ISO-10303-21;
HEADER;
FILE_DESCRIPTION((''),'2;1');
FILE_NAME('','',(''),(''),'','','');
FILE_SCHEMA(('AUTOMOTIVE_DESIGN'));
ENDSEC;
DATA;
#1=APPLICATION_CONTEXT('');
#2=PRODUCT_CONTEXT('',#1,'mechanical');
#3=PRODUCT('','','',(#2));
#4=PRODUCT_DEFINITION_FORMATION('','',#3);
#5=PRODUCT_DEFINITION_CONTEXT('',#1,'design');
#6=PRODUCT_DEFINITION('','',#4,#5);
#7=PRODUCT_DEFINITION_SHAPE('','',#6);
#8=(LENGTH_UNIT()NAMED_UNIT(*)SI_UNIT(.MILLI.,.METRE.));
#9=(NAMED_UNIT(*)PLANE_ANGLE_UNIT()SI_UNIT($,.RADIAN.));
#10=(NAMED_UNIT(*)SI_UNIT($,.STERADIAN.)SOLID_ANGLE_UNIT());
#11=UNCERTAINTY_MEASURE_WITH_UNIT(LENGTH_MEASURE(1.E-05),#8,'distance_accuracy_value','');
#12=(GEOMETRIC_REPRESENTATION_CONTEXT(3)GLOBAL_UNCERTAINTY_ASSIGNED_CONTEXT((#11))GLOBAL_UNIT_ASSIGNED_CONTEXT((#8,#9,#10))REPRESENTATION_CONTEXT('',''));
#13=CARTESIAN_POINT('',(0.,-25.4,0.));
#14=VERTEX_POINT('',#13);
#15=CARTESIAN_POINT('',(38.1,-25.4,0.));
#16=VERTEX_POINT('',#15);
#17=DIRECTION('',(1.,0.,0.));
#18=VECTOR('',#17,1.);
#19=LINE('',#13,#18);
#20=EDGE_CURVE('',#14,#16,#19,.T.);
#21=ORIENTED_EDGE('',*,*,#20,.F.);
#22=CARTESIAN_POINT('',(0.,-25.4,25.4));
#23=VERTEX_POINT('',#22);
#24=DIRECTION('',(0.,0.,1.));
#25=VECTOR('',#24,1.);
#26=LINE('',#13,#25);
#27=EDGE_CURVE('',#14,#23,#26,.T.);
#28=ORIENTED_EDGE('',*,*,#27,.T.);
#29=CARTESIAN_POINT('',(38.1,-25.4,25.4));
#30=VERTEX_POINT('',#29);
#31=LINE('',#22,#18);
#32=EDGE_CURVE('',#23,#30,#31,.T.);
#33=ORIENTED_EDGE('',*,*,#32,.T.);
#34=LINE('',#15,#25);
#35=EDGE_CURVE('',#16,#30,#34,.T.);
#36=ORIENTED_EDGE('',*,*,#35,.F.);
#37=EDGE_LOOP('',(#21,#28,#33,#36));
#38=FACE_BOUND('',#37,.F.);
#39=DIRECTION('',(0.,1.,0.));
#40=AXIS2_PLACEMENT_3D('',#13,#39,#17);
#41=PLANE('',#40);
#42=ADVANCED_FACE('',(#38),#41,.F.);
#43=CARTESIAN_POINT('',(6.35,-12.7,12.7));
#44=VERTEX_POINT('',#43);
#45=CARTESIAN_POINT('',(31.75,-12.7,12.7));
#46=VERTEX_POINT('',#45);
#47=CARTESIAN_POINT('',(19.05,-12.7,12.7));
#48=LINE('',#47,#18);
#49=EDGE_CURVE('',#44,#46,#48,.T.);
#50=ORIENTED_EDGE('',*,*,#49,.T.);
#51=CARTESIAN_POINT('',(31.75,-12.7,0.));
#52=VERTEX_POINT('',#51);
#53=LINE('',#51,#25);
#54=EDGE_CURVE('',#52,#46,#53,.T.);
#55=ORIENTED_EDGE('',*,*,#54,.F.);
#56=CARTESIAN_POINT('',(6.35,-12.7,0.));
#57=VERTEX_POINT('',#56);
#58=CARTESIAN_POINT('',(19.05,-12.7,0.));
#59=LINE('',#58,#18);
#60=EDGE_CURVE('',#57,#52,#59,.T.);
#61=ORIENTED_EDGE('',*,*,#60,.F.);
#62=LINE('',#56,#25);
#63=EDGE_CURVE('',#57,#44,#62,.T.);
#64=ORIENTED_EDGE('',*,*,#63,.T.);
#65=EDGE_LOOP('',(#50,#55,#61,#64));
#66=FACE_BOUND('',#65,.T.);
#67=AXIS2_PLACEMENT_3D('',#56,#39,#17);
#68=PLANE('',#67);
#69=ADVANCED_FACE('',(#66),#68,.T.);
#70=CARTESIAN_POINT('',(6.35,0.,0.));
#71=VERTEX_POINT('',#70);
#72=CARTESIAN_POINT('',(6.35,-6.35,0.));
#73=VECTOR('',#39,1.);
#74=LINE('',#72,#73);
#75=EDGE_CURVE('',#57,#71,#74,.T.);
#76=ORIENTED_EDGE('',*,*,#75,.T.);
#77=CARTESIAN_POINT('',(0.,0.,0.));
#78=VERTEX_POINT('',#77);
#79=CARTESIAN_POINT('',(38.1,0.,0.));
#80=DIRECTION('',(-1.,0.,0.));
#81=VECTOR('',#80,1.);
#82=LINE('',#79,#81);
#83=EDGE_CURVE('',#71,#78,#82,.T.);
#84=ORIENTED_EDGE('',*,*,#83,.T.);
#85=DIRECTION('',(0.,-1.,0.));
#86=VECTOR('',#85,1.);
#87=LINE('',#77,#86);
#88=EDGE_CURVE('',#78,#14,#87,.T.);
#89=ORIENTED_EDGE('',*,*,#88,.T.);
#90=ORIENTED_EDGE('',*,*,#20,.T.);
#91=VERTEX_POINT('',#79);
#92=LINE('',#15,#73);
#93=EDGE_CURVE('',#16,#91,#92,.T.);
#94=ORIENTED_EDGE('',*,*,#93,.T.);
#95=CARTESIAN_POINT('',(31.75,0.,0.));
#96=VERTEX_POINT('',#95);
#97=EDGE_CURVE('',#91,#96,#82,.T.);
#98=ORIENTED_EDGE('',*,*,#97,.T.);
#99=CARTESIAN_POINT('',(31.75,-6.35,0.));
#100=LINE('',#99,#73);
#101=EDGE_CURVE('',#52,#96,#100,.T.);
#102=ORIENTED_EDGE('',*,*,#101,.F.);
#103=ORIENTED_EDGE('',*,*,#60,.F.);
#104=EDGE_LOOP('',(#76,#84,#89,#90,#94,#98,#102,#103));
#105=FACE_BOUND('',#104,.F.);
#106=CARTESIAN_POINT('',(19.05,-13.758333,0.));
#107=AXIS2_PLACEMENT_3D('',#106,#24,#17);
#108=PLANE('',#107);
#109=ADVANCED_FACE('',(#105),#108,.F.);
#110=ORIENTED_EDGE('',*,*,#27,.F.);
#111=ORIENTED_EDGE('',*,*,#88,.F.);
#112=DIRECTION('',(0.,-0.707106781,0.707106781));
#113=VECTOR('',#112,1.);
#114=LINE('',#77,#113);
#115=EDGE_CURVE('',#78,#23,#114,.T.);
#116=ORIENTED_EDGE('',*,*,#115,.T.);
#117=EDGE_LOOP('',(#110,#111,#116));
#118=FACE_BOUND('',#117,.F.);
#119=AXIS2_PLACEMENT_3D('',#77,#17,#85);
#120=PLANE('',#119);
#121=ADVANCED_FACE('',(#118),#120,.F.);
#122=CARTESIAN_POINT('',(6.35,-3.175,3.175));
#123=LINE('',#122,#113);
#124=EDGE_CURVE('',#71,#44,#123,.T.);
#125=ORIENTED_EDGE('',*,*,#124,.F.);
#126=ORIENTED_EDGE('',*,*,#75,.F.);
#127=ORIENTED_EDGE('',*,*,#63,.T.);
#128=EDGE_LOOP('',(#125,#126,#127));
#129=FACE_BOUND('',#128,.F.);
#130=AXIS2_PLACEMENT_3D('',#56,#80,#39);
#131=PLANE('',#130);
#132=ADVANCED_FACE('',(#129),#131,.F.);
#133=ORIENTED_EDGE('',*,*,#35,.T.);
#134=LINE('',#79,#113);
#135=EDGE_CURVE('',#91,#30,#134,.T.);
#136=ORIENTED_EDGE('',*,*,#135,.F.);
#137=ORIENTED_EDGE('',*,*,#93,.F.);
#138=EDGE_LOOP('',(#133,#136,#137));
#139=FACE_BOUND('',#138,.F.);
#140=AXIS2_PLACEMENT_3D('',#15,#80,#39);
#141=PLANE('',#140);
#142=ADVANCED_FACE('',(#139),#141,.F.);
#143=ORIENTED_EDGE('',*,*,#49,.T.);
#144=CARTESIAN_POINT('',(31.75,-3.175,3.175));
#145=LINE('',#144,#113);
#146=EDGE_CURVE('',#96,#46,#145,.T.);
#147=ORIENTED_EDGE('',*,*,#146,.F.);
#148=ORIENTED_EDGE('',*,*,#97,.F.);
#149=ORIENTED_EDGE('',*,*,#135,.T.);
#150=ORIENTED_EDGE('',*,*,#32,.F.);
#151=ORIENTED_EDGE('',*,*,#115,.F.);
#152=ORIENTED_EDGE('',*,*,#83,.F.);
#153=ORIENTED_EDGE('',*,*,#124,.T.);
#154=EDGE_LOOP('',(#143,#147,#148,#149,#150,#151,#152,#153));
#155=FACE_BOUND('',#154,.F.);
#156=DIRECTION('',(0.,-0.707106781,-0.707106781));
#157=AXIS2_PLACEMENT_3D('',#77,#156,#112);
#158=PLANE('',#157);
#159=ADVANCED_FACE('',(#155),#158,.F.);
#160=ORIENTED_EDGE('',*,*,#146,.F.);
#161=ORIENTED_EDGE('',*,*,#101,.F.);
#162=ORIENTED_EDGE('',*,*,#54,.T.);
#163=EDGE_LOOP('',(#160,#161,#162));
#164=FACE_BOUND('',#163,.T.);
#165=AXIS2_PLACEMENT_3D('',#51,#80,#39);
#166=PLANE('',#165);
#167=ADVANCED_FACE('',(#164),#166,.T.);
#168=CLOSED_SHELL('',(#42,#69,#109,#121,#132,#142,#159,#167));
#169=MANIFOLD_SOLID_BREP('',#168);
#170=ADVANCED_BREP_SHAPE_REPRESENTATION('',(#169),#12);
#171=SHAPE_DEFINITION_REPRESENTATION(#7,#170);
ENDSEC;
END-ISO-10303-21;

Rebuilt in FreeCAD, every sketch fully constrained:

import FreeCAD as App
import Part
import Sketcher
Q = App.Units.Quantity

doc = App.newDocument("Part")
params = doc.addObject("Spreadsheet::Sheet", "Params")
for row, (alias, value) in enumerate([
    ("sketch1_height", "1 in"),
    ("sketch1_width", "1.5 in"),
    ("pad1_length", "1 in"),
    ("sketch2_width", "1 in"),
    ("sketch2_height", "0.5 in"),
    ("pocket1_length", "0.5 in"),
    ("sketch3_width", "1 in"),
    ("pocket2_length", "1.5 in"),
], start=1):
    params.set(f"A{row}", alias)
    params.set(f"B{row}", "=" + value)
    params.setAlias(f"B{row}", alias)

body = doc.addObject("PartDesign::Body", "Body")

# Sketch on XY plane
sketch1 = body.newObject("Sketcher::SketchObject", "Sketch")
sketch1.AttachmentSupport = (doc.getObject("XY_Plane"), [""])
sketch1.MapMode = "FlatFace"
sketch1.addGeometry([
    Part.LineSegment(App.Vector(0, 0, 0), App.Vector(0, -25.4, 0)),
    Part.LineSegment(App.Vector(0, -25.4, 0), App.Vector(38.1, -25.4, 0)),
    Part.LineSegment(App.Vector(38.1, -25.4, 0), App.Vector(38.1, 0, 0)),
    Part.LineSegment(App.Vector(38.1, 0, 0), App.Vector(0, 0, 0)),
], False)
sketch1.addConstraint([
    Sketcher.Constraint("Coincident", 0, 2, 1, 1),
    Sketcher.Constraint("Coincident", 1, 2, 2, 1),
    Sketcher.Constraint("Coincident", 2, 2, 3, 1),
    Sketcher.Constraint("Coincident", 3, 2, 0, 1),
    Sketcher.Constraint("Vertical", 0),
    Sketcher.Constraint("Horizontal", 1),
    Sketcher.Constraint("Vertical", 2),
    Sketcher.Constraint("Horizontal", 3),
    Sketcher.Constraint("Coincident", 3, 2, -1, 1),
    Sketcher.Constraint("DistanceY", 0, 2, 0, 1, Q("1 in")),
    Sketcher.Constraint("DistanceX", 1, 1, 1, 2, Q("1.5 in")),
])
sketch1.setExpression("Constraints[9]", "Params.sketch1_height")
sketch1.setExpression("Constraints[10]", "Params.sketch1_width")
pad1 = body.newObject("PartDesign::Pad", "Pad")
pad1.Profile = sketch1
pad1.setExpression("Length", "Params.pad1_length")

# Sketch on XY plane
sketch2 = body.newObject("Sketcher::SketchObject", "Sketch001")
sketch2.AttachmentSupport = (doc.getObject("XY_Plane"), [""])
sketch2.MapMode = "FlatFace"
sketch2.addGeometry([
    Part.LineSegment(App.Vector(6.35, 0, 0), App.Vector(6.35, -12.7, 0)),
    Part.LineSegment(App.Vector(6.35, -12.7, 0), App.Vector(31.75, -12.7, 0)),
    Part.LineSegment(App.Vector(31.75, -12.7, 0), App.Vector(31.75, 0, 0)),
    Part.LineSegment(App.Vector(31.75, 0, 0), App.Vector(6.35, 0, 0)),
], False)
sketch2.addConstraint([
    Sketcher.Constraint("Coincident", 0, 2, 1, 1),
    Sketcher.Constraint("Coincident", 1, 2, 2, 1),
    Sketcher.Constraint("Coincident", 2, 2, 3, 1),
    Sketcher.Constraint("Coincident", 3, 2, 0, 1),
    Sketcher.Constraint("Vertical", 0),
    Sketcher.Constraint("Horizontal", 1),
    Sketcher.Constraint("Vertical", 2),
    Sketcher.Constraint("Horizontal", 3),
    Sketcher.Constraint("PointOnObject", 2, 2, -1),
    Sketcher.Constraint("DistanceX", 1, 1, 1, 2, Q("1 in")),
    Sketcher.Constraint("DistanceY", 0, 2, 0, 1, Q("0.5 in")),
    Sketcher.Constraint("DistanceX", -1, 1, 0, 2, Q("0.25 in")),
])
sketch2.setExpression("Constraints[9]", "Params.sketch2_width")
sketch2.setExpression("Constraints[10]", "Params.sketch2_height")
pocket1 = body.newObject("PartDesign::Pocket", "Pocket")
pocket1.Profile = sketch2
pocket1.setExpression("Length", "Params.pocket1_length")
pocket1.Reversed = True

# Sketch on YZ plane
sketch3 = body.newObject("Sketcher::SketchObject", "Sketch002")
sketch3.AttachmentSupport = (doc.getObject("YZ_Plane"), [""])
sketch3.MapMode = "FlatFace"
sketch3.addGeometry([
    Part.LineSegment(App.Vector(0, 25.4, 0), App.Vector(0, 0, 0)),
    Part.LineSegment(App.Vector(0, 0, 0), App.Vector(-25.4, 25.4, 0)),
    Part.LineSegment(App.Vector(-25.4, 25.4, 0), App.Vector(0, 25.4, 0)),
], False)
sketch3.addConstraint([
    Sketcher.Constraint("Coincident", 0, 2, 1, 1),
    Sketcher.Constraint("Coincident", 1, 2, 2, 1),
    Sketcher.Constraint("Coincident", 2, 2, 0, 1),
    Sketcher.Constraint("Vertical", 0),
    Sketcher.Constraint("Horizontal", 2),
    Sketcher.Constraint("Coincident", 0, 2, -1, 1),
    Sketcher.Constraint("Equal", 2, 0),
    Sketcher.Constraint("DistanceX", 2, 1, 2, 2, Q("1 in")),
])
sketch3.setExpression("Constraints[7]", "Params.sketch3_width")
pocket2 = body.newObject("PartDesign::Pocket", "Pocket001")
pocket2.Profile = sketch3
pocket2.setExpression("Length", "Params.pocket2_length")
pocket2.Reversed = True

doc.recompute()
